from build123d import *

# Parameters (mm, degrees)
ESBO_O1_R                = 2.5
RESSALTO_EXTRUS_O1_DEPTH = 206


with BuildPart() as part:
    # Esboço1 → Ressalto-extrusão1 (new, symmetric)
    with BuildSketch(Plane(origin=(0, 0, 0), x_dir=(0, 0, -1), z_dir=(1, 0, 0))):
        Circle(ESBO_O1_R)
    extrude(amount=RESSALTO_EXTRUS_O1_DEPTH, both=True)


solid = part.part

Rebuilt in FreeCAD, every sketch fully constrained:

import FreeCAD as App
import Part
import Sketcher

V = App.Vector
Q = App.Units.Quantity

doc = App.newDocument("Part")
body = doc.addObject("PartDesign::Body", "Body")

sketch1 = body.newObject("Sketcher::SketchObject", "Sketch")
sketch1.AttachmentSupport = (doc.getObject("YZ_Plane"), [""])
sketch1.MapMode = "FlatFace"
sketch1.addGeometry(Part.Circle(V(0, 0, 0), V(0, 0, 1), 2.5), False)
sketch1.addConstraint(Sketcher.Constraint("Coincident", 0, 3, -1, 1))
sketch1.addConstraint(Sketcher.Constraint("Diameter", 0, Q("5 mm")))
pad1 = body.newObject("PartDesign::Pad", "Pad")
pad1.Profile = sketch1
pad1.Length = 412
pad1.Midplane = True

doc.recompute()
